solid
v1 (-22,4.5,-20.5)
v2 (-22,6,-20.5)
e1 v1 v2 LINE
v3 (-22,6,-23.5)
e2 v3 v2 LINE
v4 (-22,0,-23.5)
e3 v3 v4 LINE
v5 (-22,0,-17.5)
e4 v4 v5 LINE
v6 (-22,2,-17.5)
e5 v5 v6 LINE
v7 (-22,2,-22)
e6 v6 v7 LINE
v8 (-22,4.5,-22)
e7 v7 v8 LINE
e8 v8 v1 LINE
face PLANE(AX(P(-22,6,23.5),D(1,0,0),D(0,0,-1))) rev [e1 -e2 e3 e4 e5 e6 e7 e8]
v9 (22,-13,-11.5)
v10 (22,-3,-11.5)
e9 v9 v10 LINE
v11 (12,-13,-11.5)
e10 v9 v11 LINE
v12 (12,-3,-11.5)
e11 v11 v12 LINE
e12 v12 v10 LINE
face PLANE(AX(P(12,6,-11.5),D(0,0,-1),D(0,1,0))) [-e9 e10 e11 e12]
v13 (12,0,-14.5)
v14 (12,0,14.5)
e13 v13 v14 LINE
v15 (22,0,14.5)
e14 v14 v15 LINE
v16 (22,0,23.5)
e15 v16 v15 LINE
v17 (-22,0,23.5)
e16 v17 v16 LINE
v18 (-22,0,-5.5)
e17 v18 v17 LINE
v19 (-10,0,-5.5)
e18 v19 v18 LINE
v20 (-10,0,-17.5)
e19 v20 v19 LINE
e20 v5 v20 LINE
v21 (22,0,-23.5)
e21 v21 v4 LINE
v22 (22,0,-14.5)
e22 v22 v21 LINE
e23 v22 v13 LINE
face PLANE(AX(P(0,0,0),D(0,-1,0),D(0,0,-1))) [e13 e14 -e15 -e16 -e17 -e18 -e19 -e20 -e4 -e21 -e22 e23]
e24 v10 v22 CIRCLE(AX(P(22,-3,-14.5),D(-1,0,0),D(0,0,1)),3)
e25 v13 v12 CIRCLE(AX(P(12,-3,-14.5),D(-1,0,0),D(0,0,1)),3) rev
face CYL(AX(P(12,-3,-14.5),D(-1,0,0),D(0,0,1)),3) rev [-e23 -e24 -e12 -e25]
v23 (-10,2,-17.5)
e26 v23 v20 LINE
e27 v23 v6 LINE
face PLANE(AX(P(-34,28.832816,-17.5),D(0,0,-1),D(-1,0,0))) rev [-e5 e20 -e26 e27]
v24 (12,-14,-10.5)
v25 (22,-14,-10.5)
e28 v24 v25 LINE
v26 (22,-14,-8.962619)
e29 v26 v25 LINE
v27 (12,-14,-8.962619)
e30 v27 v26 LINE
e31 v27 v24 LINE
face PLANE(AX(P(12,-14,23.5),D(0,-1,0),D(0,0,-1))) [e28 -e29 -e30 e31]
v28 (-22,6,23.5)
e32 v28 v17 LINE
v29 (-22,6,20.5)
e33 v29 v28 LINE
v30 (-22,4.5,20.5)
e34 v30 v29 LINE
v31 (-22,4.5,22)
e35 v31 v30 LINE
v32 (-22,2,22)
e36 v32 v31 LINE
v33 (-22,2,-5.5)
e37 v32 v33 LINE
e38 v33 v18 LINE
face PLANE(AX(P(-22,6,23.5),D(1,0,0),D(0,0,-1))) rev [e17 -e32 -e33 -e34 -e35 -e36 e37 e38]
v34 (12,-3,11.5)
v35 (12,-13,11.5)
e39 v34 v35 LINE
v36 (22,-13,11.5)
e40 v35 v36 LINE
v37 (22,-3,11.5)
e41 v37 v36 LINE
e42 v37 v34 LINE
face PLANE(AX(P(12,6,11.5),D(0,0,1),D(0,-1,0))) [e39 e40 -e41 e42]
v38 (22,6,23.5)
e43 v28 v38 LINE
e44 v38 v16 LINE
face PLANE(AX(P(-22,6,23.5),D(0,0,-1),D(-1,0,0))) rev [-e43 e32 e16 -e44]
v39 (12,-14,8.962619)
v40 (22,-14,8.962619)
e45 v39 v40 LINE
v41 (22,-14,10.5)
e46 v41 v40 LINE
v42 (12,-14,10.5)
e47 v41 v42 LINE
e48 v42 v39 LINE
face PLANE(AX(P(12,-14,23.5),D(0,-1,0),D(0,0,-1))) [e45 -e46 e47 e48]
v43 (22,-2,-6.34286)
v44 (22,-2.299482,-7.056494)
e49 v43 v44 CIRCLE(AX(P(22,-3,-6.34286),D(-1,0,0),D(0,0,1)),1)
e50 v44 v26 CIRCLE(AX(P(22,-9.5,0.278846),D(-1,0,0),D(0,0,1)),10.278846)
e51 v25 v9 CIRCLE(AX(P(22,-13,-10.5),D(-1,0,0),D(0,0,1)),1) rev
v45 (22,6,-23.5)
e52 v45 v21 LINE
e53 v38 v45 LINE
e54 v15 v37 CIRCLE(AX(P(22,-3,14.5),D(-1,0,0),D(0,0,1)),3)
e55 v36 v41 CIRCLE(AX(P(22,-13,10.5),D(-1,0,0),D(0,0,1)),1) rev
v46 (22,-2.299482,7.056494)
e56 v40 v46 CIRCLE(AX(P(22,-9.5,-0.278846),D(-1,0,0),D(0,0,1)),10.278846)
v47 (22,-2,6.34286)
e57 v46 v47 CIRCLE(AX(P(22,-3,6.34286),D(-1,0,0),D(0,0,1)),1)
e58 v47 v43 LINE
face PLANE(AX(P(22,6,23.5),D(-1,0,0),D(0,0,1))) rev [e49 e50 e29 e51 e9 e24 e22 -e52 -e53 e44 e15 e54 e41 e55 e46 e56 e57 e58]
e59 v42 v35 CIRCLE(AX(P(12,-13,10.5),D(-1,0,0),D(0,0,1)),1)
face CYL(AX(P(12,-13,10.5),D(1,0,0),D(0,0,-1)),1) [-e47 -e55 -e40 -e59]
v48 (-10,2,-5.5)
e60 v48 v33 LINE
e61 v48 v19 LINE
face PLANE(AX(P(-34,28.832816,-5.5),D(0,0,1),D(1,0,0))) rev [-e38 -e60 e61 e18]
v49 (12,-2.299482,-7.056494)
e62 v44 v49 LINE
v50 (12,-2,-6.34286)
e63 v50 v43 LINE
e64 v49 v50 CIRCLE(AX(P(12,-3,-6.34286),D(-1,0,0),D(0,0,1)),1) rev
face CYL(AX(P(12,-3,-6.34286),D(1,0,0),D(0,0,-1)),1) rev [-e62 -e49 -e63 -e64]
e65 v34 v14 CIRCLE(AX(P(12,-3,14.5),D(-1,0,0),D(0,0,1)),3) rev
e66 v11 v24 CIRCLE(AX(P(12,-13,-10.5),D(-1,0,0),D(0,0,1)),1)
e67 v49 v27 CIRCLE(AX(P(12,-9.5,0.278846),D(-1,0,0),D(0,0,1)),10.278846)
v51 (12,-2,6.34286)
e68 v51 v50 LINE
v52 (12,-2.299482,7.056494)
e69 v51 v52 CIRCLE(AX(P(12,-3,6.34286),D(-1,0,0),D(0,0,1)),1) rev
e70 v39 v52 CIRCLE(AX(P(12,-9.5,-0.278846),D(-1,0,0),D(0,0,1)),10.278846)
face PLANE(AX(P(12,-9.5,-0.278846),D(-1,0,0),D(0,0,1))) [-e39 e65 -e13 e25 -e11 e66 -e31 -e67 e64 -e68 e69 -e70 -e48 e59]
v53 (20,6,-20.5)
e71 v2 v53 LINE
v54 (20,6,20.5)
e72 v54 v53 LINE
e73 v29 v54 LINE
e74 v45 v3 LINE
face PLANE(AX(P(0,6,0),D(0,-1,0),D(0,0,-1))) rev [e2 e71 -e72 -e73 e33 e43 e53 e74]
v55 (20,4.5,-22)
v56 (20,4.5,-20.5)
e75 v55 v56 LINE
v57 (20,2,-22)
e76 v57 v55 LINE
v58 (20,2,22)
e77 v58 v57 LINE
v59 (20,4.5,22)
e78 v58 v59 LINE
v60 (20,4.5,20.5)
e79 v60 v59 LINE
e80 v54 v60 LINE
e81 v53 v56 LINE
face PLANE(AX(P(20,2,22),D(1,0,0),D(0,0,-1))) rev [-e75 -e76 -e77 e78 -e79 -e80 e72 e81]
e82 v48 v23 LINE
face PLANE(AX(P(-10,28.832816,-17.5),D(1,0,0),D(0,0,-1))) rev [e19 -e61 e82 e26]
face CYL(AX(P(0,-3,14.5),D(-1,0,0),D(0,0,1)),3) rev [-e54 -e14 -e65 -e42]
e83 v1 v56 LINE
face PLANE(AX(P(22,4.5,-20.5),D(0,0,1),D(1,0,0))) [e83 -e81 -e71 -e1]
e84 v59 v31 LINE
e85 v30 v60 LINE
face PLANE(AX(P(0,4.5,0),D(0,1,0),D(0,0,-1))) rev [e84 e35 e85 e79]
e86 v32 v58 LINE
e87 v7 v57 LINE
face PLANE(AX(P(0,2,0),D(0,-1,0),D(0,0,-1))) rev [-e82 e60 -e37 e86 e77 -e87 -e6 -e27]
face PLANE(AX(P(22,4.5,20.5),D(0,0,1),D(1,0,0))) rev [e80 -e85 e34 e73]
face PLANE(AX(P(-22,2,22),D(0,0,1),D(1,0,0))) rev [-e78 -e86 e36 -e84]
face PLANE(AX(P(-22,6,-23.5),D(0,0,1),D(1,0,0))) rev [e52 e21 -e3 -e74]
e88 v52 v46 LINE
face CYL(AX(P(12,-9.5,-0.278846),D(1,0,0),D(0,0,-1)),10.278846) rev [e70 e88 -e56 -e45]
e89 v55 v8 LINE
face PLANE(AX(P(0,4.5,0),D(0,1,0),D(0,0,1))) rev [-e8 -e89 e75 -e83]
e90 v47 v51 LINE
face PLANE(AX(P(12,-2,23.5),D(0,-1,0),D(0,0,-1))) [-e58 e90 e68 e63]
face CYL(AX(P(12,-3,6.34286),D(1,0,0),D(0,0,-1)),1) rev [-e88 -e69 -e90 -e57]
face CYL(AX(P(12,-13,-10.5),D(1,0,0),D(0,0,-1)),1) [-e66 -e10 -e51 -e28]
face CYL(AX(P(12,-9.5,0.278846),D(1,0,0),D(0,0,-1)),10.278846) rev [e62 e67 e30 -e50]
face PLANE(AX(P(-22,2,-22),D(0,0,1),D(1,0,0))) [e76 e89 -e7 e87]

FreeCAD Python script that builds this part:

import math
import FreeCAD as App
import Part
import Sketcher
from FreeCAD import Vector
Q = App.Units.Quantity


def edges_at(feature, points):
    """Names of the edges that pass closest to the given points."""
    edges = feature.Shape.Edges
    near = lambda p: min(range(len(edges)), key=lambda i: edges[i].distToShape(Part.Vertex(*p))[0])
    return sorted({f"Edge{near(p) + 1}" for p in points})

doc = App.newDocument("Part")
params = doc.addObject("Spreadsheet::Sheet", "Params")
for row, (alias, value) in enumerate([
    ("sketch1_width", "44 mm"),
    ("sketch1_height", "47 mm"),
    ("pad1_length", "6 mm"),
    ("sketch2_width", "42 mm"),
    ("sketch2_height", "44 mm"),
    ("pocket1_length", "4 mm"),
    ("sketch3_width", "44 mm"),
    ("sketch3_height", "3 mm"),
    ("pad2_length", "1.5 mm"),
    ("sketch4_width", "24 mm"),
    ("sketch4_height", "12 mm"),
    ("pocket2_length", "2 mm"),
    ("sketch5_width", "14 mm"),
    ("sketch5_height", "23 mm"),
    ("sketch5_height2", "13.5 mm"),
    ("pad3_length", "10 mm"),
    ("fillet_radius", "3 mm"),
    ("fillet2_radius", "1 mm"),
], start=1):
    params.set(f"A{row}", alias)
    params.set(f"B{row}", "=" + value)
    params.setAlias(f"B{row}", alias)

body = doc.addObject("PartDesign::Body", "Body")

sketch1 = doc.addObject("Sketcher::SketchObject", "Sketch")
body.addObject(sketch1)
sketch1.AttachmentSupport = (doc.XZ_Plane, [""])
sketch1.MapMode = "FlatFace"
sketch1.addGeometry(Part.LineSegment(Vector(-22, -24, 0), Vector(-22, 24, 0)), False)
sketch1.addGeometry(Part.LineSegment(Vector(-22, 24, 0), Vector(22, 24, 0)), False)
sketch1.addGeometry(Part.LineSegment(Vector(22, 24, 0), Vector(22, -24, 0)), False)
sketch1.addGeometry(Part.LineSegment(Vector(22, -24, 0), Vector(-22, -24, 0)), False)
sketch1.addConstraint(Sketcher.Constraint("Coincident", 0, 2, 1, 1))
sketch1.addConstraint(Sketcher.Constraint("Coincident", 1, 2, 2, 1))
sketch1.addConstraint(Sketcher.Constraint("Coincident", 2, 2, 3, 1))
sketch1.addConstraint(Sketcher.Constraint("Coincident", 3, 2, 0, 1))
sketch1.addConstraint(Sketcher.Constraint("Vertical", 0))
sketch1.addConstraint(Sketcher.Constraint("Horizontal", 1))
sketch1.addConstraint(Sketcher.Constraint("Vertical", 2))
sketch1.addConstraint(Sketcher.Constraint("Horizontal", 3))
sketch1.addConstraint(Sketcher.Constraint("Symmetric", 0, 2, 2, 2, -1, 1))
sketch1.addConstraint(Sketcher.Constraint("DistanceX", 1, 1, 1, 2, Q("44 mm")))
sketch1.addConstraint(Sketcher.Constraint("DistanceY", 0, 1, 0, 2, Q("47 mm")))
sketch1.setExpression("Constraints[9]", "Params.sketch1_width")
sketch1.setExpression("Constraints[10]", "Params.sketch1_height")
pad1 = doc.addObject("PartDesign::Pad", "Pad")
body.addObject(pad1)
pad1.Profile = sketch1
pad1.setExpression("Length", "Params.pad1_length")
pad1.Reversed = True

sketch2 = doc.addObject("Sketcher::SketchObject", "Sketch001")
body.addObject(sketch2)
sketch2.AttachmentSupport = (doc.XZ_Plane, [""])
sketch2.MapMode = "FlatFace"
sketch2.AttachmentOffset = App.Placement(Vector(0, 0, -6), App.Rotation())
sketch2.addGeometry(Part.LineSegment(Vector(-22, -22, 0), Vector(-22, 22, 0)), False)
sketch2.addGeometry(Part.LineSegment(Vector(-22, 22, 0), Vector(20, 22, 0)), False)
sketch2.addGeometry(Part.LineSegment(Vector(20, 22, 0), Vector(20, -22, 0)), False)
sketch2.addGeometry(Part.LineSegment(Vector(20, -22, 0), Vector(-22, -22, 0)), False)
sketch2.addConstraint(Sketcher.Constraint("Coincident", 0, 2, 1, 1))
sketch2.addConstraint(Sketcher.Constraint("Coincident", 1, 2, 2, 1))
sketch2.addConstraint(Sketcher.Constraint("Coincident", 2, 2, 3, 1))
sketch2.addConstraint(Sketcher.Constraint("Coincident", 3, 2, 0, 1))
sketch2.addConstraint(Sketcher.Constraint("Vertical", 0))
sketch2.addConstraint(Sketcher.Constraint("Horizontal", 1))
sketch2.addConstraint(Sketcher.Constraint("Vertical", 2))
sketch2.addConstraint(Sketcher.Constraint("Horizontal", 3))
sketch2.addConstraint(Sketcher.Constraint("DistanceX", 1, 1, 1, 2, Q("42 mm")))
sketch2.addConstraint(Sketcher.Constraint("DistanceY", 0, 1, 0, 2, Q("44 mm")))
sketch2.addConstraint(Sketcher.Constraint("DistanceX", 0, 2, -1, 1, Q("22 mm")))
sketch2.addConstraint(Sketcher.Constraint("DistanceY", -1, 1, 0, 2, Q("22 mm")))
sketch2.setExpression("Constraints[8]", "Params.sketch2_width")
sketch2.setExpression("Constraints[9]", "Params.sketch2_height")
pocket1 = doc.addObject("PartDesign::Pocket", "Pocket")
body.addObject(pocket1)
pocket1.Profile = sketch2
pocket1.setExpression("Length", "Params.pocket1_length")
pocket1.Reversed = True

sketch3 = doc.addObject("Sketcher::SketchObject", "Sketch002")
body.addObject(sketch3)
sketch3.AttachmentSupport = (doc.XZ_Plane, [""])
sketch3.MapMode = "FlatFace"
sketch3.AttachmentOffset = App.Placement(Vector(0, 0, -6), App.Rotation())
sketch3.addGeometry(Part.LineSegment(Vector(-22, -23.5, 0), Vector(-22, -20.5, 0)), False)
sketch3.addGeometry(Part.LineSegment(Vector(-22, -20.5, 0), Vector(22, -20.5, 0)), False)
sketch3.addGeometry(Part.LineSegment(Vector(22, -20.5, 0), Vector(22, -23.5, 0)), False)
sketch3.addGeometry(Part.LineSegment(Vector(22, -23.5, 0), Vector(-22, -23.5, 0)), False)
sketch3.addConstraint(Sketcher.Constraint("Coincident", 0, 2, 1, 1))
sketch3.addConstraint(Sketcher.Constraint("Coincident", 1, 2, 2, 1))
sketch3.addConstraint(Sketcher.Constraint("Coincident", 2, 2, 3, 1))
sketch3.addConstraint(Sketcher.Constraint("Coincident", 3, 2, 0, 1))
sketch3.addConstraint(Sketcher.Constraint("Vertical", 0))
sketch3.addConstraint(Sketcher.Constraint("Horizontal", 1))
sketch3.addConstraint(Sketcher.Constraint("Vertical", 2))
sketch3.addConstraint(Sketcher.Constraint("Horizontal", 3))
sketch3.addConstraint(Sketcher.Constraint("DistanceX", 1, 1, 1, 2, Q("44 mm")))
sketch3.addConstraint(Sketcher.Constraint("DistanceY", 0, 1, 0, 2, Q("3 mm")))
sketch3.addConstraint(Sketcher.Constraint("DistanceX", 0, 2, -1, 1, Q("22 mm")))
sketch3.addConstraint(Sketcher.Constraint("DistanceY", 0, 2, -1, 1, Q("20.5 mm")))
sketch3.setExpression("Constraints[8]", "Params.sketch3_width")
sketch3.setExpression("Constraints[9]", "Params.sketch3_height")
pad2 = doc.addObject("PartDesign::Pad", "Pad001")
body.addObject(pad2)
pad2.Profile = sketch3
pad2.setExpression("Length", "Params.pad2_length")
doc.recompute()

mirrored = doc.addObject("PartDesign::Mirrored", "Mirrored")
body.addObject(mirrored)
mirrored.Originals = [pad2]
mirrored.MirrorPlane = (doc.XY_Plane, [""])
body.Tip = mirrored

sketch4 = doc.addObject("Sketcher::SketchObject", "Sketch003")
body.addObject(sketch4)
sketch4.AttachmentSupport = (doc.XZ_Plane, [""])
sketch4.MapMode = "FlatFace"
sketch4.addGeometry(Part.LineSegment(Vector(-34, -6, 0), Vector(-34, -18, 0)), False)
sketch4.addGeometry(Part.LineSegment(Vector(-34, -18, 0), Vector(-10, -18, 0)), False)
sketch4.addGeometry(Part.LineSegment(Vector(-10, -18, 0), Vector(-10, -6, 0)), False)
sketch4.addGeometry(Part.LineSegment(Vector(-10, -6, 0), Vector(-34, -6, 0)), False)
sketch4.addConstraint(Sketcher.Constraint("Coincident", 0, 2, 1, 1))
sketch4.addConstraint(Sketcher.Constraint("Coincident", 1, 2, 2, 1))
sketch4.addConstraint(Sketcher.Constraint("Coincident", 2, 2, 3, 1))
sketch4.addConstraint(Sketcher.Constraint("Coincident", 3, 2, 0, 1))
sketch4.addConstraint(Sketcher.Constraint("Vertical", 0))
sketch4.addConstraint(Sketcher.Constraint("Horizontal", 1))
sketch4.addConstraint(Sketcher.Constraint("Vertical", 2))
sketch4.addConstraint(Sketcher.Constraint("Horizontal", 3))
sketch4.addConstraint(Sketcher.Constraint("DistanceX", 1, 1, 1, 2, Q("24 mm")))
sketch4.addConstraint(Sketcher.Constraint("DistanceY", 0, 2, 0, 1, Q("12 mm")))
sketch4.addConstraint(Sketcher.Constraint("DistanceX", 0, 2, -1, 1, Q("34 mm")))
sketch4.addConstraint(Sketcher.Constraint("DistanceY", 0, 2, -1, 1, Q("17.5 mm")))
sketch4.setExpression("Constraints[8]", "Params.sketch4_width")
sketch4.setExpression("Constraints[9]", "Params.sketch4_height")
pocket2 = doc.addObject("PartDesign::Pocket", "Pocket001")
body.addObject(pocket2)
pocket2.Profile = sketch4
pocket2.setExpression("Length", "Params.pocket2_length")

sketch5 = doc.addObject("Sketcher::SketchObject", "Sketch004")
body.addObject(sketch5)
sketch5.AttachmentSupport = (doc.YZ_Plane, [""])
sketch5.MapMode = "FlatFace"
sketch5.AttachmentOffset = App.Placement(Vector(0, 0, 22), App.Rotation())
sketch5.addGeometry(Part.LineSegment(Vector(-2, 6.8, 0), Vector(-2, -6.8, 0)), False)
sketch5.addGeometry(Part.ArcOfCircle(Part.Circle(Vector(-9.5, 0.3, 0), Vector(0, 0, 1), 10.3), math.radians(-116), math.radians(-43)), False)
sketch5.addGeometry(Part.LineSegment(Vector(-14, -9, 0), Vector(-14, -11.5, 0)), False)
sketch5.addGeometry(Part.LineSegment(Vector(-14, -11.5, 0), Vector(0, -11.5, 0)), False)
sketch5.addGeometry(Part.LineSegment(Vector(0, -11.5, 0), Vector(0, 11.5, 0)), False)
sketch5.addGeometry(Part.LineSegment(Vector(0, 11.5, 0), Vector(-14, 11.5, 0)), False)
sketch5.addGeometry(Part.LineSegment(Vector(-14, 11.5, 0), Vector(-14, 9, 0)), False)
sketch5.addGeometry(Part.ArcOfCircle(Part.Circle(Vector(-9.5, -0.3, 0), Vector(0, 0, 1), 10.3), math.radians(43), math.radians(116)), False)
sketch5.addConstraint(Sketcher.Constraint("Coincident", 0, 2, 1, 2))
sketch5.addConstraint(Sketcher.Constraint("Coincident", 1, 1, 2, 1))
sketch5.addConstraint(Sketcher.Constraint("Coincident", 2, 2, 3, 1))
sketch5.addConstraint(Sketcher.Constraint("Coincident", 3, 2, 4, 1))
sketch5.addConstraint(Sketcher.Constraint("Coincident", 4, 2, 5, 1))
sketch5.addConstraint(Sketcher.Constraint("Coincident", 5, 2, 6, 1))
sketch5.addConstraint(Sketcher.Constraint("Coincident", 6, 2, 7, 2))
sketch5.addConstraint(Sketcher.Constraint("Coincident", 7, 1, 0, 1))
sketch5.addConstraint(Sketcher.Constraint("Vertical", 0))
sketch5.addConstraint(Sketcher.Constraint("Vertical", 2))
sketch5.addConstraint(Sketcher.Constraint("Horizontal", 3))
sketch5.addConstraint(Sketcher.Constraint("Vertical", 4))
sketch5.addConstraint(Sketcher.Constraint("Horizontal", 5))
sketch5.addConstraint(Sketcher.Constraint("Vertical", 6))
sketch5.addConstraint(Sketcher.Constraint("Equal", 1, 7))
sketch5.addConstraint(Sketcher.Constraint("Symmetric", 3, 2, 4, 2, -1, 1))
sketch5.addConstraint(Sketcher.Constraint("Symmetric", 1, 3, 7, 3, -1))
sketch5.addConstraint(Sketcher.Constraint("Vertical", 2, 2, 5, 2))
sketch5.addConstraint(Sketcher.Constraint("DistanceX", 3, 1, 3, 2, Q("14 mm")))
sketch5.addConstraint(Sketcher.Constraint("DistanceY", 4, 1, 4, 2, Q("23 mm")))
sketch5.addConstraint(Sketcher.Constraint("DistanceY", 0, 2, 0, 1, Q("13.5 mm")))
sketch5.addConstraint(Sketcher.Constraint("DistanceX", 0, 2, -1, 1, Q("2 mm")))
sketch5.addConstraint(Sketcher.Constraint("DistanceX", 1, 3, -1, 1, Q("9.5 mm")))
sketch5.addConstraint(Sketcher.Constraint("Radius", 1, Q("10.278846 mm")))
sketch5.setExpression("Constraints[18]", "Params.sketch5_width")
sketch5.setExpression("Constraints[19]", "Params.sketch5_height")
sketch5.setExpression("Constraints[20]", "Params.sketch5_height2")
pad3 = doc.addObject("PartDesign::Pad", "Pad002")
body.addObject(pad3)
pad3.Profile = sketch5
pad3.setExpression("Length", "Params.pad3_length")
pad3.Reversed = True
doc.recompute()

fillet = doc.addObject("PartDesign::Fillet", "Fillet")
body.addObject(fillet)
fillet.Base = (pad3, edges_at(pad3, [(17, 0, 11.5), (17, 0, -11.5)]))
fillet.setExpression("Radius", "Params.fillet_radius")
doc.recompute()

fillet2 = doc.addObject("PartDesign::Fillet", "Fillet001")
body.addObject(fillet2)
fillet2.Base = (fillet, edges_at(fillet, [
    (17, -2, 6.75),
    (17, -14, 11.5),
    (17, -14, -11.5),
    (17, -2, -6.75),
]))
fillet2.setExpression("Radius", "Params.fillet2_radius")

doc.recompute()
